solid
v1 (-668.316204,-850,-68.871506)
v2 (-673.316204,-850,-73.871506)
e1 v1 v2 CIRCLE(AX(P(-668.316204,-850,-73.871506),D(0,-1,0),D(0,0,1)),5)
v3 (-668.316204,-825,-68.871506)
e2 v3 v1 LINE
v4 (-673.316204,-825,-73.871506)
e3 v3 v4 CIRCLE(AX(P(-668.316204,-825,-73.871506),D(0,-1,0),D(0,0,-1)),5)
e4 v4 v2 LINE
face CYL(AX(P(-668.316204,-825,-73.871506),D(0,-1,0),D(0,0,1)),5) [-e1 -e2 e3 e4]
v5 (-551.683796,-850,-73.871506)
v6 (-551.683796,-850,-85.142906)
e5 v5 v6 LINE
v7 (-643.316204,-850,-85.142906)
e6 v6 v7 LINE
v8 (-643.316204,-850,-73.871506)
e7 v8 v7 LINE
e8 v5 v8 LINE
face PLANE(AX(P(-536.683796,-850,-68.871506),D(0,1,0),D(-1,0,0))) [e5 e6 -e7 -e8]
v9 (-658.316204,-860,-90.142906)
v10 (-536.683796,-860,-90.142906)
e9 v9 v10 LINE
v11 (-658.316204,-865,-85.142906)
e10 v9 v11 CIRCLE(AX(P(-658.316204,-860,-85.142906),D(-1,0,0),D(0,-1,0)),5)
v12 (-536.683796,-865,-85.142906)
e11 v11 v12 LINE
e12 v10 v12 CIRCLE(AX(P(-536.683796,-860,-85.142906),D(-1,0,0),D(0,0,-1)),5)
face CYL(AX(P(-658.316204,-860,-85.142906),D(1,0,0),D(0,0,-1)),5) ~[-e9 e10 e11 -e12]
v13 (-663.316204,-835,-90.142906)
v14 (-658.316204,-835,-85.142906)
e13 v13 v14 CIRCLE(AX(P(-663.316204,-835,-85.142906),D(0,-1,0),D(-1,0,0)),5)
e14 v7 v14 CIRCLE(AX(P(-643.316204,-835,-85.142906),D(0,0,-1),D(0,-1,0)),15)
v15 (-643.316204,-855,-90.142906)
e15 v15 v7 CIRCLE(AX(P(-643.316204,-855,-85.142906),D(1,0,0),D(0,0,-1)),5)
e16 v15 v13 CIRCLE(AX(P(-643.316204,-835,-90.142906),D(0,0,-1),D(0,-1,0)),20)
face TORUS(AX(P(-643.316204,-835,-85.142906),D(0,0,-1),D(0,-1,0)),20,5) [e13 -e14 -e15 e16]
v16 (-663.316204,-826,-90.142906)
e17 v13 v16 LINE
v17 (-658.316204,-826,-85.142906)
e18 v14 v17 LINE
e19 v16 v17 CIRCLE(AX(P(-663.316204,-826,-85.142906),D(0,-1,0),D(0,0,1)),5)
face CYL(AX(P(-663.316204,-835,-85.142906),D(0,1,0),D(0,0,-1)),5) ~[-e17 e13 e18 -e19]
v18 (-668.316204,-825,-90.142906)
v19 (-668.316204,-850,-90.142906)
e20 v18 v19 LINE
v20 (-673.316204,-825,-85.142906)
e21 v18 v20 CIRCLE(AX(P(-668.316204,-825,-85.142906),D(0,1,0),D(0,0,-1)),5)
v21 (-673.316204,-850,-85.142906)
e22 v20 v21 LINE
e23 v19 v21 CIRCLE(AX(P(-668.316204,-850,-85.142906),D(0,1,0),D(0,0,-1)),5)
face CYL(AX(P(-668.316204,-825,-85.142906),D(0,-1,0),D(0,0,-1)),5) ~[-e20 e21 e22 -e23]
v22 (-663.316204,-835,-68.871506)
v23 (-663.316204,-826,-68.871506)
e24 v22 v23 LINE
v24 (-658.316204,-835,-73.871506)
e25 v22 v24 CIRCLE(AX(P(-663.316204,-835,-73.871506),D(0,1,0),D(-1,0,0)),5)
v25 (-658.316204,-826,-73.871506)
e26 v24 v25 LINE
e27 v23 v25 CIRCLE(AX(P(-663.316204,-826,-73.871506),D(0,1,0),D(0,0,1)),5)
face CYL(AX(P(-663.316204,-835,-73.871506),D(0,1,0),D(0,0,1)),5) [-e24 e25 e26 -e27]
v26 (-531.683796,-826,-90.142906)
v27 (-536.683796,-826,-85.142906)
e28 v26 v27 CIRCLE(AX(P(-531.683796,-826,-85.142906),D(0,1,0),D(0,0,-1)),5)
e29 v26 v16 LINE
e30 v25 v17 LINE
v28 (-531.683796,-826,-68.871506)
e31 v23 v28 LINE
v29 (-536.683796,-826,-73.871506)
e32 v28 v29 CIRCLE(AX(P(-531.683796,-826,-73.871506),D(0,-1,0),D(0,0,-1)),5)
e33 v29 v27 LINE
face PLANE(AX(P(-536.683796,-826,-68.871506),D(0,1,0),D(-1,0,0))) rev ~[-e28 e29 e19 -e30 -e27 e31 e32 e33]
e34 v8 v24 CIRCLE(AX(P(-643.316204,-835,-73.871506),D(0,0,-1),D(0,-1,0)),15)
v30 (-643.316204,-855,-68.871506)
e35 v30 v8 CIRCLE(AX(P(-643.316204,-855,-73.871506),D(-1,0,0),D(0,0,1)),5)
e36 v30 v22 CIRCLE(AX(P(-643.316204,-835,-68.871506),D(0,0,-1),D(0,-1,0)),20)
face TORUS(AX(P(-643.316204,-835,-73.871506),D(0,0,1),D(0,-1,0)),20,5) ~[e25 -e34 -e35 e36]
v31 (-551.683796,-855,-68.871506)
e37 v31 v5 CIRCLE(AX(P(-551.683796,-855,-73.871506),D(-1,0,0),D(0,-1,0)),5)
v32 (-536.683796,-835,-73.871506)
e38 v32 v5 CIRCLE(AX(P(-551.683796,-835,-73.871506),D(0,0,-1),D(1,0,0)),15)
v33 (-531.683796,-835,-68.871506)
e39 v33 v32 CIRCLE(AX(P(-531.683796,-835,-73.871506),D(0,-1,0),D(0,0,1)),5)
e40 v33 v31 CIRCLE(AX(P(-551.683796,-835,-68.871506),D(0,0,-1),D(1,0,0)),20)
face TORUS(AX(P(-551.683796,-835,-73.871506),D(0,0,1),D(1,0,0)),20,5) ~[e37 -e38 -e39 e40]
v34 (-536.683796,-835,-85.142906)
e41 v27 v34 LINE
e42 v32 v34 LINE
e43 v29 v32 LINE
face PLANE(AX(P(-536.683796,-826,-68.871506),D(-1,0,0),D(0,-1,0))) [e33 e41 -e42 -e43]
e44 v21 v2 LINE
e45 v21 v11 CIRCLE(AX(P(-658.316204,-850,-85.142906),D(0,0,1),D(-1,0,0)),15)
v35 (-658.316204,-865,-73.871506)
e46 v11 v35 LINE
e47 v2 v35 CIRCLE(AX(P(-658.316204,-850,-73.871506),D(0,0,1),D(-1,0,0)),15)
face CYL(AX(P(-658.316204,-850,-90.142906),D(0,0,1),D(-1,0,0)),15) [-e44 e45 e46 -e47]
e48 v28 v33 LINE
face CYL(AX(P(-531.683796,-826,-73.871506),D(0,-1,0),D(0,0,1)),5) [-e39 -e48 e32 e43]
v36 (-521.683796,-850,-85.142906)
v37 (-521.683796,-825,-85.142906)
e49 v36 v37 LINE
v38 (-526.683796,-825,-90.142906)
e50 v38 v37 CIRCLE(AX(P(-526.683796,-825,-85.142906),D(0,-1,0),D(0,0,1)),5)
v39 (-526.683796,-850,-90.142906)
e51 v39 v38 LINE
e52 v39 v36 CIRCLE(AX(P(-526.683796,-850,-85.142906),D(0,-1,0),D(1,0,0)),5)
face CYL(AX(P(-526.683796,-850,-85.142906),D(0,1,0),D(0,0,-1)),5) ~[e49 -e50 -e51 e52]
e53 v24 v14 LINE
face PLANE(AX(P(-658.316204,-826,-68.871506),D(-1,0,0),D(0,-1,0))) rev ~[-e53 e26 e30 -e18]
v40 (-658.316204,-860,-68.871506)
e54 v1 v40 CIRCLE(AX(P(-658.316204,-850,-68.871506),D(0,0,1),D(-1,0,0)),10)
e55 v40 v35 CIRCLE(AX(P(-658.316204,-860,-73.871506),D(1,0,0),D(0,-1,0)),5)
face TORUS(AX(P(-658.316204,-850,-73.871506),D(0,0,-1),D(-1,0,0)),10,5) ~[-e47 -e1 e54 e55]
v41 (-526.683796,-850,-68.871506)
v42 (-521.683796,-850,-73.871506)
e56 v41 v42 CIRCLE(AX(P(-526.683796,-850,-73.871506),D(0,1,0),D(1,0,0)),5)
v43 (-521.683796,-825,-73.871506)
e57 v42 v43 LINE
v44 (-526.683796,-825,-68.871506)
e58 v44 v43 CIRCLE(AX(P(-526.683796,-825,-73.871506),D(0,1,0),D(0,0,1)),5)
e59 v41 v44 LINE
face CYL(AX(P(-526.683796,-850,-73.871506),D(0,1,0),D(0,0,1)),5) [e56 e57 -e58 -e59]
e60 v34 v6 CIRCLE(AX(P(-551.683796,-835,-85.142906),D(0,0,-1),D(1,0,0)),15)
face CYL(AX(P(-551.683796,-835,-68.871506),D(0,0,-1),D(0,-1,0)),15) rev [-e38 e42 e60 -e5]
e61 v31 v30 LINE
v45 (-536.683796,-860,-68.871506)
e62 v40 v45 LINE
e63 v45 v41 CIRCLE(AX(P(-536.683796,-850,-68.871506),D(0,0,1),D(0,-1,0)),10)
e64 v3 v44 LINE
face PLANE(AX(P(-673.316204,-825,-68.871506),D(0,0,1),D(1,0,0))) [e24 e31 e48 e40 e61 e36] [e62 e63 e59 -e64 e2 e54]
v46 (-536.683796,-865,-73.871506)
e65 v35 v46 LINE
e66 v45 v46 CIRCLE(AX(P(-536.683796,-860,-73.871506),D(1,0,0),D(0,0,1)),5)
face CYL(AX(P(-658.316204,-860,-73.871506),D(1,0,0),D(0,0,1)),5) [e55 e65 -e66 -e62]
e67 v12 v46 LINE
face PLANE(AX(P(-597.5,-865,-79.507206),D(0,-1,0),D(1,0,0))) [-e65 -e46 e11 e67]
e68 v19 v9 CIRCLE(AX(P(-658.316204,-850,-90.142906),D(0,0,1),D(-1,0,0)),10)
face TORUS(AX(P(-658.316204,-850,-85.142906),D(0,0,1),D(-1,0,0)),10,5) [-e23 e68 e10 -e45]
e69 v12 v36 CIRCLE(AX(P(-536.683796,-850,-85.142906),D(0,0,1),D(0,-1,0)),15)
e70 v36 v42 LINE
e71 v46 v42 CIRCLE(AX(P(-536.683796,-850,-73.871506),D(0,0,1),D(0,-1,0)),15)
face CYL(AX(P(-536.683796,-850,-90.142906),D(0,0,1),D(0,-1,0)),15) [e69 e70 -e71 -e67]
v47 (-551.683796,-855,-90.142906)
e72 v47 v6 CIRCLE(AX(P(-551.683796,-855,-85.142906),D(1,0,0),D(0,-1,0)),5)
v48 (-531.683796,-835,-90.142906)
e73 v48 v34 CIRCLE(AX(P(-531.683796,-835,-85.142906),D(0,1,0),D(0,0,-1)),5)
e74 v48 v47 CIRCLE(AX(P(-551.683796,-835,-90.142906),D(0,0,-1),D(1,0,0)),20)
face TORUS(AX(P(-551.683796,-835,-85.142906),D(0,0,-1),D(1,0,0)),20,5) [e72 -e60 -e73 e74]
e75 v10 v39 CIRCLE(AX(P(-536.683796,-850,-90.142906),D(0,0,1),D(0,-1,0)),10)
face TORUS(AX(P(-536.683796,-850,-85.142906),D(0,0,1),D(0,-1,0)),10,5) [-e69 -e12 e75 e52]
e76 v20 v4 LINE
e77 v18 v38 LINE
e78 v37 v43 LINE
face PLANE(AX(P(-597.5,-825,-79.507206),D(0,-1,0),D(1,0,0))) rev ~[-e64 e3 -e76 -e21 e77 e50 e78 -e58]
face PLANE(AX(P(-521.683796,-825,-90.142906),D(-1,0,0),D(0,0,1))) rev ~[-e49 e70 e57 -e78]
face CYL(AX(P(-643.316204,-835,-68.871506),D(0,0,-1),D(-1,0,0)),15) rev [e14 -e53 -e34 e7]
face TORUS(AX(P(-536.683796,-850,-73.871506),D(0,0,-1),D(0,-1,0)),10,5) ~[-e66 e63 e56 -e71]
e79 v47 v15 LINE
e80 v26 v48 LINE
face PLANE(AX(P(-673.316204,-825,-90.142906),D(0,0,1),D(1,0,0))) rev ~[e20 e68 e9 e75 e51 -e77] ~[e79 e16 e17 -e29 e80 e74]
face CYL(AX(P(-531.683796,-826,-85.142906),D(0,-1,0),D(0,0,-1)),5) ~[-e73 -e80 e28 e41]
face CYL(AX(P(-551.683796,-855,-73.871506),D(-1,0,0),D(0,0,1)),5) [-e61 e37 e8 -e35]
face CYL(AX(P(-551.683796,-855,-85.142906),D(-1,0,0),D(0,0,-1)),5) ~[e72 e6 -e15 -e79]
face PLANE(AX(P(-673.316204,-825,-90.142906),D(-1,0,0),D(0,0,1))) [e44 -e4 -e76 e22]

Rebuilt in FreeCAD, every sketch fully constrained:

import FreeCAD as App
import Part
import Sketcher

V = App.Vector


def edges_at(feature, points):
    """Names of the edges that pass closest to the given points."""
    edges = feature.Shape.Edges
    near = lambda p: min(range(len(edges)), key=lambda i: edges[i].distToShape(Part.Vertex(*p))[0])
    return sorted({f"Edge{near(p) + 1}" for p in points})

doc = App.newDocument("Part")
params = doc.addObject("Spreadsheet::Sheet", "Params")
for row, (alias, value) in enumerate([
    ("pad1_length", "40 mm"),
    ("sketch2_height", "24 mm"),
    ("fillet_radius", "15 mm"),
    ("fillet2_radius", "5 mm"),
], start=1):
    params.set(f"A{row}", alias)
    params.set(f"B{row}", "=" + value)
    params.setAlias(f"B{row}", alias)

body = doc.addObject("PartDesign::Body", "Body")

sketch1 = body.newObject("Sketcher::SketchObject", "Sketch")
sketch1.AttachmentSupport = (doc.getObject("XZ_Plane"), [""])
sketch1.MapMode = "FlatFace"
sketch1.AttachmentOffset = App.Placement(V(0, 0, 825), App.Rotation())
sketch1.addGeometry(Part.LineSegment(V(-673, -69, 0), V(-673, -90, 0)), False)
sketch1.addGeometry(Part.LineSegment(V(-673, -90, 0), V(-522, -90, 0)), False)
sketch1.addGeometry(Part.LineSegment(V(-522, -90, 0), V(-522, -69, 0)), False)
sketch1.addGeometry(Part.LineSegment(V(-522, -69, 0), V(-673, -69, 0)), False)
sketch1.addConstraint(Sketcher.Constraint("Coincident", 0, 2, 1, 1))
sketch1.addConstraint(Sketcher.Constraint("Coincident", 1, 2, 2, 1))
sketch1.addConstraint(Sketcher.Constraint("Coincident", 2, 2, 3, 1))
sketch1.addConstraint(Sketcher.Constraint("Coincident", 3, 2, 0, 1))
sketch1.addConstraint(Sketcher.Constraint("Vertical", 0))
sketch1.addConstraint(Sketcher.Constraint("Horizontal", 1))
sketch1.addConstraint(Sketcher.Constraint("Vertical", 2))
sketch1.addConstraint(Sketcher.Constraint("Horizontal", 3))
sketch1.addConstraint(Sketcher.Constraint("DistanceY", 0, 2, 0, 1, 21.2714))
sketch1.addConstraint(Sketcher.Constraint("DistanceX", 1, 1, 1, 2, 151.632408))
sketch1.addConstraint(Sketcher.Constraint("DistanceX", 0, 2, -1, 1, 673.316204))
sketch1.addConstraint(Sketcher.Constraint("DistanceY", 0, 2, -1, 1, 90.142906))
pad1 = body.newObject("PartDesign::Pad", "Pad")
pad1.Profile = sketch1
pad1.setExpression("Length", "Params.pad1_length")

sketch2 = body.newObject("Sketcher::SketchObject", "Sketch001")
sketch2.AttachmentSupport = (doc.getObject("XY_Plane"), [""])
sketch2.MapMode = "FlatFace"
sketch2.AttachmentOffset = App.Placement(V(0, 0, -68.871506), App.Rotation())
sketch2.addGeometry(Part.LineSegment(V(-537, -850, 0), V(-537, -826, 0)), False)
sketch2.addGeometry(Part.LineSegment(V(-537, -826, 0), V(-658, -826, 0)), False)
sketch2.addGeometry(Part.LineSegment(V(-658, -826, 0), V(-658, -850, 0)), False)
sketch2.addGeometry(Part.LineSegment(V(-658, -850, 0), V(-537, -850, 0)), False)
sketch2.addConstraint(Sketcher.Constraint("Coincident", 0, 2, 1, 1))
sketch2.addConstraint(Sketcher.Constraint("Coincident", 1, 2, 2, 1))
sketch2.addConstraint(Sketcher.Constraint("Coincident", 2, 2, 3, 1))
sketch2.addConstraint(Sketcher.Constraint("Coincident", 3, 2, 0, 1))
sketch2.addConstraint(Sketcher.Constraint("Vertical", 0))
sketch2.addConstraint(Sketcher.Constraint("Horizontal", 1))
sketch2.addConstraint(Sketcher.Constraint("Vertical", 2))
sketch2.addConstraint(Sketcher.Constraint("Horizontal", 3))
sketch2.addConstraint(Sketcher.Constraint("DistanceY", 0, 1, 0, 2, 24.0))
sketch2.addConstraint(Sketcher.Constraint("DistanceY", 0, 2, -1, 1, 826.0))
sketch2.addConstraint(Sketcher.Constraint("DistanceX", 1, 2, 1, 1, 121.632408))
sketch2.addConstraint(Sketcher.Constraint("DistanceX", 0, 2, -1, 1, 536.683796))
sketch2.setExpression("Constraints[8]", "Params.sketch2_height")
pocket1 = body.newObject("PartDesign::Pocket", "Pocket")
pocket1.Profile = sketch2
pocket1.Type = "ThroughAll"
doc.recompute()

fillet = body.newObject("PartDesign::Fillet", "Fillet")
fillet.Base = (pocket1, edges_at(pocket1, [
    (-536.684, -850, -79.507),
    (-521.684, -865, -79.507),
    (-658.316, -850, -79.507),
    (-673.316, -865, -79.507),
]))
fillet.setExpression("Radius", "Params.fillet_radius")
doc.recompute()

fillet2 = body.newObject("PartDesign::Fillet", "Fillet001")
fillet2.Base = (fillet, edges_at(fillet, [
    (-597.5, -865, -68.872),
    (-597.5, -865, -90.143),
    (-597.5, -850, -68.872),
    (-597.5, -850, -90.143),
]))
fillet2.setExpression("Radius", "Params.fillet2_radius")

doc.recompute()
